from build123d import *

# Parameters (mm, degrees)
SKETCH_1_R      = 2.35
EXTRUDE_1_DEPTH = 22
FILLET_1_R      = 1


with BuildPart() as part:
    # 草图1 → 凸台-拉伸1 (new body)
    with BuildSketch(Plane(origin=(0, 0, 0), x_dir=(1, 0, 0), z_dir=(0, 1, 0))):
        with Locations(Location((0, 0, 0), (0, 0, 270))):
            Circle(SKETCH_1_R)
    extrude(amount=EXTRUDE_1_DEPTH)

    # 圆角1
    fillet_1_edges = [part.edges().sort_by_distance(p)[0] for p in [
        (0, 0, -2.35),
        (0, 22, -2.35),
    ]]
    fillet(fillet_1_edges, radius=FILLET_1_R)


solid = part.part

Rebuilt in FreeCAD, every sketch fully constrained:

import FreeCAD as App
import Part
import Sketcher

V = App.Vector
Q = App.Units.Quantity


def edges_at(feature, points):
    """Names of the edges that pass closest to the given points."""
    edges = feature.Shape.Edges
    near = lambda p: min(range(len(edges)), key=lambda i: edges[i].distToShape(Part.Vertex(*p))[0])
    return sorted({f"Edge{near(p) + 1}" for p in points})

doc = App.newDocument("Part")
body = doc.addObject("PartDesign::Body", "Body")

# Sketch on XZ plane
sketch1 = body.newObject("Sketcher::SketchObject", "Sketch")
sketch1.AttachmentSupport = (doc.getObject("XZ_Plane"), [""])
sketch1.MapMode = "FlatFace"
sketch1.addGeometry(Part.Circle(V(0, 0, 0), V(0, 0, 1), 2.4), False)
sketch1.addConstraint([
    Sketcher.Constraint("Coincident", 0, 3, -1, 1),
    Sketcher.Constraint("Diameter", 0, Q("4.7 mm")),
])
pad1 = body.newObject("PartDesign::Pad", "Pad")
pad1.Profile = sketch1
pad1.Length = 22
pad1.Reversed = True
doc.recompute()

fillet = body.newObject("PartDesign::Fillet", "Fillet")
fillet.Base = (pad1, edges_at(pad1, [(0, 0, -2.35), (0, 22, -2.35)]))
fillet.Radius = 1

doc.recompute()
